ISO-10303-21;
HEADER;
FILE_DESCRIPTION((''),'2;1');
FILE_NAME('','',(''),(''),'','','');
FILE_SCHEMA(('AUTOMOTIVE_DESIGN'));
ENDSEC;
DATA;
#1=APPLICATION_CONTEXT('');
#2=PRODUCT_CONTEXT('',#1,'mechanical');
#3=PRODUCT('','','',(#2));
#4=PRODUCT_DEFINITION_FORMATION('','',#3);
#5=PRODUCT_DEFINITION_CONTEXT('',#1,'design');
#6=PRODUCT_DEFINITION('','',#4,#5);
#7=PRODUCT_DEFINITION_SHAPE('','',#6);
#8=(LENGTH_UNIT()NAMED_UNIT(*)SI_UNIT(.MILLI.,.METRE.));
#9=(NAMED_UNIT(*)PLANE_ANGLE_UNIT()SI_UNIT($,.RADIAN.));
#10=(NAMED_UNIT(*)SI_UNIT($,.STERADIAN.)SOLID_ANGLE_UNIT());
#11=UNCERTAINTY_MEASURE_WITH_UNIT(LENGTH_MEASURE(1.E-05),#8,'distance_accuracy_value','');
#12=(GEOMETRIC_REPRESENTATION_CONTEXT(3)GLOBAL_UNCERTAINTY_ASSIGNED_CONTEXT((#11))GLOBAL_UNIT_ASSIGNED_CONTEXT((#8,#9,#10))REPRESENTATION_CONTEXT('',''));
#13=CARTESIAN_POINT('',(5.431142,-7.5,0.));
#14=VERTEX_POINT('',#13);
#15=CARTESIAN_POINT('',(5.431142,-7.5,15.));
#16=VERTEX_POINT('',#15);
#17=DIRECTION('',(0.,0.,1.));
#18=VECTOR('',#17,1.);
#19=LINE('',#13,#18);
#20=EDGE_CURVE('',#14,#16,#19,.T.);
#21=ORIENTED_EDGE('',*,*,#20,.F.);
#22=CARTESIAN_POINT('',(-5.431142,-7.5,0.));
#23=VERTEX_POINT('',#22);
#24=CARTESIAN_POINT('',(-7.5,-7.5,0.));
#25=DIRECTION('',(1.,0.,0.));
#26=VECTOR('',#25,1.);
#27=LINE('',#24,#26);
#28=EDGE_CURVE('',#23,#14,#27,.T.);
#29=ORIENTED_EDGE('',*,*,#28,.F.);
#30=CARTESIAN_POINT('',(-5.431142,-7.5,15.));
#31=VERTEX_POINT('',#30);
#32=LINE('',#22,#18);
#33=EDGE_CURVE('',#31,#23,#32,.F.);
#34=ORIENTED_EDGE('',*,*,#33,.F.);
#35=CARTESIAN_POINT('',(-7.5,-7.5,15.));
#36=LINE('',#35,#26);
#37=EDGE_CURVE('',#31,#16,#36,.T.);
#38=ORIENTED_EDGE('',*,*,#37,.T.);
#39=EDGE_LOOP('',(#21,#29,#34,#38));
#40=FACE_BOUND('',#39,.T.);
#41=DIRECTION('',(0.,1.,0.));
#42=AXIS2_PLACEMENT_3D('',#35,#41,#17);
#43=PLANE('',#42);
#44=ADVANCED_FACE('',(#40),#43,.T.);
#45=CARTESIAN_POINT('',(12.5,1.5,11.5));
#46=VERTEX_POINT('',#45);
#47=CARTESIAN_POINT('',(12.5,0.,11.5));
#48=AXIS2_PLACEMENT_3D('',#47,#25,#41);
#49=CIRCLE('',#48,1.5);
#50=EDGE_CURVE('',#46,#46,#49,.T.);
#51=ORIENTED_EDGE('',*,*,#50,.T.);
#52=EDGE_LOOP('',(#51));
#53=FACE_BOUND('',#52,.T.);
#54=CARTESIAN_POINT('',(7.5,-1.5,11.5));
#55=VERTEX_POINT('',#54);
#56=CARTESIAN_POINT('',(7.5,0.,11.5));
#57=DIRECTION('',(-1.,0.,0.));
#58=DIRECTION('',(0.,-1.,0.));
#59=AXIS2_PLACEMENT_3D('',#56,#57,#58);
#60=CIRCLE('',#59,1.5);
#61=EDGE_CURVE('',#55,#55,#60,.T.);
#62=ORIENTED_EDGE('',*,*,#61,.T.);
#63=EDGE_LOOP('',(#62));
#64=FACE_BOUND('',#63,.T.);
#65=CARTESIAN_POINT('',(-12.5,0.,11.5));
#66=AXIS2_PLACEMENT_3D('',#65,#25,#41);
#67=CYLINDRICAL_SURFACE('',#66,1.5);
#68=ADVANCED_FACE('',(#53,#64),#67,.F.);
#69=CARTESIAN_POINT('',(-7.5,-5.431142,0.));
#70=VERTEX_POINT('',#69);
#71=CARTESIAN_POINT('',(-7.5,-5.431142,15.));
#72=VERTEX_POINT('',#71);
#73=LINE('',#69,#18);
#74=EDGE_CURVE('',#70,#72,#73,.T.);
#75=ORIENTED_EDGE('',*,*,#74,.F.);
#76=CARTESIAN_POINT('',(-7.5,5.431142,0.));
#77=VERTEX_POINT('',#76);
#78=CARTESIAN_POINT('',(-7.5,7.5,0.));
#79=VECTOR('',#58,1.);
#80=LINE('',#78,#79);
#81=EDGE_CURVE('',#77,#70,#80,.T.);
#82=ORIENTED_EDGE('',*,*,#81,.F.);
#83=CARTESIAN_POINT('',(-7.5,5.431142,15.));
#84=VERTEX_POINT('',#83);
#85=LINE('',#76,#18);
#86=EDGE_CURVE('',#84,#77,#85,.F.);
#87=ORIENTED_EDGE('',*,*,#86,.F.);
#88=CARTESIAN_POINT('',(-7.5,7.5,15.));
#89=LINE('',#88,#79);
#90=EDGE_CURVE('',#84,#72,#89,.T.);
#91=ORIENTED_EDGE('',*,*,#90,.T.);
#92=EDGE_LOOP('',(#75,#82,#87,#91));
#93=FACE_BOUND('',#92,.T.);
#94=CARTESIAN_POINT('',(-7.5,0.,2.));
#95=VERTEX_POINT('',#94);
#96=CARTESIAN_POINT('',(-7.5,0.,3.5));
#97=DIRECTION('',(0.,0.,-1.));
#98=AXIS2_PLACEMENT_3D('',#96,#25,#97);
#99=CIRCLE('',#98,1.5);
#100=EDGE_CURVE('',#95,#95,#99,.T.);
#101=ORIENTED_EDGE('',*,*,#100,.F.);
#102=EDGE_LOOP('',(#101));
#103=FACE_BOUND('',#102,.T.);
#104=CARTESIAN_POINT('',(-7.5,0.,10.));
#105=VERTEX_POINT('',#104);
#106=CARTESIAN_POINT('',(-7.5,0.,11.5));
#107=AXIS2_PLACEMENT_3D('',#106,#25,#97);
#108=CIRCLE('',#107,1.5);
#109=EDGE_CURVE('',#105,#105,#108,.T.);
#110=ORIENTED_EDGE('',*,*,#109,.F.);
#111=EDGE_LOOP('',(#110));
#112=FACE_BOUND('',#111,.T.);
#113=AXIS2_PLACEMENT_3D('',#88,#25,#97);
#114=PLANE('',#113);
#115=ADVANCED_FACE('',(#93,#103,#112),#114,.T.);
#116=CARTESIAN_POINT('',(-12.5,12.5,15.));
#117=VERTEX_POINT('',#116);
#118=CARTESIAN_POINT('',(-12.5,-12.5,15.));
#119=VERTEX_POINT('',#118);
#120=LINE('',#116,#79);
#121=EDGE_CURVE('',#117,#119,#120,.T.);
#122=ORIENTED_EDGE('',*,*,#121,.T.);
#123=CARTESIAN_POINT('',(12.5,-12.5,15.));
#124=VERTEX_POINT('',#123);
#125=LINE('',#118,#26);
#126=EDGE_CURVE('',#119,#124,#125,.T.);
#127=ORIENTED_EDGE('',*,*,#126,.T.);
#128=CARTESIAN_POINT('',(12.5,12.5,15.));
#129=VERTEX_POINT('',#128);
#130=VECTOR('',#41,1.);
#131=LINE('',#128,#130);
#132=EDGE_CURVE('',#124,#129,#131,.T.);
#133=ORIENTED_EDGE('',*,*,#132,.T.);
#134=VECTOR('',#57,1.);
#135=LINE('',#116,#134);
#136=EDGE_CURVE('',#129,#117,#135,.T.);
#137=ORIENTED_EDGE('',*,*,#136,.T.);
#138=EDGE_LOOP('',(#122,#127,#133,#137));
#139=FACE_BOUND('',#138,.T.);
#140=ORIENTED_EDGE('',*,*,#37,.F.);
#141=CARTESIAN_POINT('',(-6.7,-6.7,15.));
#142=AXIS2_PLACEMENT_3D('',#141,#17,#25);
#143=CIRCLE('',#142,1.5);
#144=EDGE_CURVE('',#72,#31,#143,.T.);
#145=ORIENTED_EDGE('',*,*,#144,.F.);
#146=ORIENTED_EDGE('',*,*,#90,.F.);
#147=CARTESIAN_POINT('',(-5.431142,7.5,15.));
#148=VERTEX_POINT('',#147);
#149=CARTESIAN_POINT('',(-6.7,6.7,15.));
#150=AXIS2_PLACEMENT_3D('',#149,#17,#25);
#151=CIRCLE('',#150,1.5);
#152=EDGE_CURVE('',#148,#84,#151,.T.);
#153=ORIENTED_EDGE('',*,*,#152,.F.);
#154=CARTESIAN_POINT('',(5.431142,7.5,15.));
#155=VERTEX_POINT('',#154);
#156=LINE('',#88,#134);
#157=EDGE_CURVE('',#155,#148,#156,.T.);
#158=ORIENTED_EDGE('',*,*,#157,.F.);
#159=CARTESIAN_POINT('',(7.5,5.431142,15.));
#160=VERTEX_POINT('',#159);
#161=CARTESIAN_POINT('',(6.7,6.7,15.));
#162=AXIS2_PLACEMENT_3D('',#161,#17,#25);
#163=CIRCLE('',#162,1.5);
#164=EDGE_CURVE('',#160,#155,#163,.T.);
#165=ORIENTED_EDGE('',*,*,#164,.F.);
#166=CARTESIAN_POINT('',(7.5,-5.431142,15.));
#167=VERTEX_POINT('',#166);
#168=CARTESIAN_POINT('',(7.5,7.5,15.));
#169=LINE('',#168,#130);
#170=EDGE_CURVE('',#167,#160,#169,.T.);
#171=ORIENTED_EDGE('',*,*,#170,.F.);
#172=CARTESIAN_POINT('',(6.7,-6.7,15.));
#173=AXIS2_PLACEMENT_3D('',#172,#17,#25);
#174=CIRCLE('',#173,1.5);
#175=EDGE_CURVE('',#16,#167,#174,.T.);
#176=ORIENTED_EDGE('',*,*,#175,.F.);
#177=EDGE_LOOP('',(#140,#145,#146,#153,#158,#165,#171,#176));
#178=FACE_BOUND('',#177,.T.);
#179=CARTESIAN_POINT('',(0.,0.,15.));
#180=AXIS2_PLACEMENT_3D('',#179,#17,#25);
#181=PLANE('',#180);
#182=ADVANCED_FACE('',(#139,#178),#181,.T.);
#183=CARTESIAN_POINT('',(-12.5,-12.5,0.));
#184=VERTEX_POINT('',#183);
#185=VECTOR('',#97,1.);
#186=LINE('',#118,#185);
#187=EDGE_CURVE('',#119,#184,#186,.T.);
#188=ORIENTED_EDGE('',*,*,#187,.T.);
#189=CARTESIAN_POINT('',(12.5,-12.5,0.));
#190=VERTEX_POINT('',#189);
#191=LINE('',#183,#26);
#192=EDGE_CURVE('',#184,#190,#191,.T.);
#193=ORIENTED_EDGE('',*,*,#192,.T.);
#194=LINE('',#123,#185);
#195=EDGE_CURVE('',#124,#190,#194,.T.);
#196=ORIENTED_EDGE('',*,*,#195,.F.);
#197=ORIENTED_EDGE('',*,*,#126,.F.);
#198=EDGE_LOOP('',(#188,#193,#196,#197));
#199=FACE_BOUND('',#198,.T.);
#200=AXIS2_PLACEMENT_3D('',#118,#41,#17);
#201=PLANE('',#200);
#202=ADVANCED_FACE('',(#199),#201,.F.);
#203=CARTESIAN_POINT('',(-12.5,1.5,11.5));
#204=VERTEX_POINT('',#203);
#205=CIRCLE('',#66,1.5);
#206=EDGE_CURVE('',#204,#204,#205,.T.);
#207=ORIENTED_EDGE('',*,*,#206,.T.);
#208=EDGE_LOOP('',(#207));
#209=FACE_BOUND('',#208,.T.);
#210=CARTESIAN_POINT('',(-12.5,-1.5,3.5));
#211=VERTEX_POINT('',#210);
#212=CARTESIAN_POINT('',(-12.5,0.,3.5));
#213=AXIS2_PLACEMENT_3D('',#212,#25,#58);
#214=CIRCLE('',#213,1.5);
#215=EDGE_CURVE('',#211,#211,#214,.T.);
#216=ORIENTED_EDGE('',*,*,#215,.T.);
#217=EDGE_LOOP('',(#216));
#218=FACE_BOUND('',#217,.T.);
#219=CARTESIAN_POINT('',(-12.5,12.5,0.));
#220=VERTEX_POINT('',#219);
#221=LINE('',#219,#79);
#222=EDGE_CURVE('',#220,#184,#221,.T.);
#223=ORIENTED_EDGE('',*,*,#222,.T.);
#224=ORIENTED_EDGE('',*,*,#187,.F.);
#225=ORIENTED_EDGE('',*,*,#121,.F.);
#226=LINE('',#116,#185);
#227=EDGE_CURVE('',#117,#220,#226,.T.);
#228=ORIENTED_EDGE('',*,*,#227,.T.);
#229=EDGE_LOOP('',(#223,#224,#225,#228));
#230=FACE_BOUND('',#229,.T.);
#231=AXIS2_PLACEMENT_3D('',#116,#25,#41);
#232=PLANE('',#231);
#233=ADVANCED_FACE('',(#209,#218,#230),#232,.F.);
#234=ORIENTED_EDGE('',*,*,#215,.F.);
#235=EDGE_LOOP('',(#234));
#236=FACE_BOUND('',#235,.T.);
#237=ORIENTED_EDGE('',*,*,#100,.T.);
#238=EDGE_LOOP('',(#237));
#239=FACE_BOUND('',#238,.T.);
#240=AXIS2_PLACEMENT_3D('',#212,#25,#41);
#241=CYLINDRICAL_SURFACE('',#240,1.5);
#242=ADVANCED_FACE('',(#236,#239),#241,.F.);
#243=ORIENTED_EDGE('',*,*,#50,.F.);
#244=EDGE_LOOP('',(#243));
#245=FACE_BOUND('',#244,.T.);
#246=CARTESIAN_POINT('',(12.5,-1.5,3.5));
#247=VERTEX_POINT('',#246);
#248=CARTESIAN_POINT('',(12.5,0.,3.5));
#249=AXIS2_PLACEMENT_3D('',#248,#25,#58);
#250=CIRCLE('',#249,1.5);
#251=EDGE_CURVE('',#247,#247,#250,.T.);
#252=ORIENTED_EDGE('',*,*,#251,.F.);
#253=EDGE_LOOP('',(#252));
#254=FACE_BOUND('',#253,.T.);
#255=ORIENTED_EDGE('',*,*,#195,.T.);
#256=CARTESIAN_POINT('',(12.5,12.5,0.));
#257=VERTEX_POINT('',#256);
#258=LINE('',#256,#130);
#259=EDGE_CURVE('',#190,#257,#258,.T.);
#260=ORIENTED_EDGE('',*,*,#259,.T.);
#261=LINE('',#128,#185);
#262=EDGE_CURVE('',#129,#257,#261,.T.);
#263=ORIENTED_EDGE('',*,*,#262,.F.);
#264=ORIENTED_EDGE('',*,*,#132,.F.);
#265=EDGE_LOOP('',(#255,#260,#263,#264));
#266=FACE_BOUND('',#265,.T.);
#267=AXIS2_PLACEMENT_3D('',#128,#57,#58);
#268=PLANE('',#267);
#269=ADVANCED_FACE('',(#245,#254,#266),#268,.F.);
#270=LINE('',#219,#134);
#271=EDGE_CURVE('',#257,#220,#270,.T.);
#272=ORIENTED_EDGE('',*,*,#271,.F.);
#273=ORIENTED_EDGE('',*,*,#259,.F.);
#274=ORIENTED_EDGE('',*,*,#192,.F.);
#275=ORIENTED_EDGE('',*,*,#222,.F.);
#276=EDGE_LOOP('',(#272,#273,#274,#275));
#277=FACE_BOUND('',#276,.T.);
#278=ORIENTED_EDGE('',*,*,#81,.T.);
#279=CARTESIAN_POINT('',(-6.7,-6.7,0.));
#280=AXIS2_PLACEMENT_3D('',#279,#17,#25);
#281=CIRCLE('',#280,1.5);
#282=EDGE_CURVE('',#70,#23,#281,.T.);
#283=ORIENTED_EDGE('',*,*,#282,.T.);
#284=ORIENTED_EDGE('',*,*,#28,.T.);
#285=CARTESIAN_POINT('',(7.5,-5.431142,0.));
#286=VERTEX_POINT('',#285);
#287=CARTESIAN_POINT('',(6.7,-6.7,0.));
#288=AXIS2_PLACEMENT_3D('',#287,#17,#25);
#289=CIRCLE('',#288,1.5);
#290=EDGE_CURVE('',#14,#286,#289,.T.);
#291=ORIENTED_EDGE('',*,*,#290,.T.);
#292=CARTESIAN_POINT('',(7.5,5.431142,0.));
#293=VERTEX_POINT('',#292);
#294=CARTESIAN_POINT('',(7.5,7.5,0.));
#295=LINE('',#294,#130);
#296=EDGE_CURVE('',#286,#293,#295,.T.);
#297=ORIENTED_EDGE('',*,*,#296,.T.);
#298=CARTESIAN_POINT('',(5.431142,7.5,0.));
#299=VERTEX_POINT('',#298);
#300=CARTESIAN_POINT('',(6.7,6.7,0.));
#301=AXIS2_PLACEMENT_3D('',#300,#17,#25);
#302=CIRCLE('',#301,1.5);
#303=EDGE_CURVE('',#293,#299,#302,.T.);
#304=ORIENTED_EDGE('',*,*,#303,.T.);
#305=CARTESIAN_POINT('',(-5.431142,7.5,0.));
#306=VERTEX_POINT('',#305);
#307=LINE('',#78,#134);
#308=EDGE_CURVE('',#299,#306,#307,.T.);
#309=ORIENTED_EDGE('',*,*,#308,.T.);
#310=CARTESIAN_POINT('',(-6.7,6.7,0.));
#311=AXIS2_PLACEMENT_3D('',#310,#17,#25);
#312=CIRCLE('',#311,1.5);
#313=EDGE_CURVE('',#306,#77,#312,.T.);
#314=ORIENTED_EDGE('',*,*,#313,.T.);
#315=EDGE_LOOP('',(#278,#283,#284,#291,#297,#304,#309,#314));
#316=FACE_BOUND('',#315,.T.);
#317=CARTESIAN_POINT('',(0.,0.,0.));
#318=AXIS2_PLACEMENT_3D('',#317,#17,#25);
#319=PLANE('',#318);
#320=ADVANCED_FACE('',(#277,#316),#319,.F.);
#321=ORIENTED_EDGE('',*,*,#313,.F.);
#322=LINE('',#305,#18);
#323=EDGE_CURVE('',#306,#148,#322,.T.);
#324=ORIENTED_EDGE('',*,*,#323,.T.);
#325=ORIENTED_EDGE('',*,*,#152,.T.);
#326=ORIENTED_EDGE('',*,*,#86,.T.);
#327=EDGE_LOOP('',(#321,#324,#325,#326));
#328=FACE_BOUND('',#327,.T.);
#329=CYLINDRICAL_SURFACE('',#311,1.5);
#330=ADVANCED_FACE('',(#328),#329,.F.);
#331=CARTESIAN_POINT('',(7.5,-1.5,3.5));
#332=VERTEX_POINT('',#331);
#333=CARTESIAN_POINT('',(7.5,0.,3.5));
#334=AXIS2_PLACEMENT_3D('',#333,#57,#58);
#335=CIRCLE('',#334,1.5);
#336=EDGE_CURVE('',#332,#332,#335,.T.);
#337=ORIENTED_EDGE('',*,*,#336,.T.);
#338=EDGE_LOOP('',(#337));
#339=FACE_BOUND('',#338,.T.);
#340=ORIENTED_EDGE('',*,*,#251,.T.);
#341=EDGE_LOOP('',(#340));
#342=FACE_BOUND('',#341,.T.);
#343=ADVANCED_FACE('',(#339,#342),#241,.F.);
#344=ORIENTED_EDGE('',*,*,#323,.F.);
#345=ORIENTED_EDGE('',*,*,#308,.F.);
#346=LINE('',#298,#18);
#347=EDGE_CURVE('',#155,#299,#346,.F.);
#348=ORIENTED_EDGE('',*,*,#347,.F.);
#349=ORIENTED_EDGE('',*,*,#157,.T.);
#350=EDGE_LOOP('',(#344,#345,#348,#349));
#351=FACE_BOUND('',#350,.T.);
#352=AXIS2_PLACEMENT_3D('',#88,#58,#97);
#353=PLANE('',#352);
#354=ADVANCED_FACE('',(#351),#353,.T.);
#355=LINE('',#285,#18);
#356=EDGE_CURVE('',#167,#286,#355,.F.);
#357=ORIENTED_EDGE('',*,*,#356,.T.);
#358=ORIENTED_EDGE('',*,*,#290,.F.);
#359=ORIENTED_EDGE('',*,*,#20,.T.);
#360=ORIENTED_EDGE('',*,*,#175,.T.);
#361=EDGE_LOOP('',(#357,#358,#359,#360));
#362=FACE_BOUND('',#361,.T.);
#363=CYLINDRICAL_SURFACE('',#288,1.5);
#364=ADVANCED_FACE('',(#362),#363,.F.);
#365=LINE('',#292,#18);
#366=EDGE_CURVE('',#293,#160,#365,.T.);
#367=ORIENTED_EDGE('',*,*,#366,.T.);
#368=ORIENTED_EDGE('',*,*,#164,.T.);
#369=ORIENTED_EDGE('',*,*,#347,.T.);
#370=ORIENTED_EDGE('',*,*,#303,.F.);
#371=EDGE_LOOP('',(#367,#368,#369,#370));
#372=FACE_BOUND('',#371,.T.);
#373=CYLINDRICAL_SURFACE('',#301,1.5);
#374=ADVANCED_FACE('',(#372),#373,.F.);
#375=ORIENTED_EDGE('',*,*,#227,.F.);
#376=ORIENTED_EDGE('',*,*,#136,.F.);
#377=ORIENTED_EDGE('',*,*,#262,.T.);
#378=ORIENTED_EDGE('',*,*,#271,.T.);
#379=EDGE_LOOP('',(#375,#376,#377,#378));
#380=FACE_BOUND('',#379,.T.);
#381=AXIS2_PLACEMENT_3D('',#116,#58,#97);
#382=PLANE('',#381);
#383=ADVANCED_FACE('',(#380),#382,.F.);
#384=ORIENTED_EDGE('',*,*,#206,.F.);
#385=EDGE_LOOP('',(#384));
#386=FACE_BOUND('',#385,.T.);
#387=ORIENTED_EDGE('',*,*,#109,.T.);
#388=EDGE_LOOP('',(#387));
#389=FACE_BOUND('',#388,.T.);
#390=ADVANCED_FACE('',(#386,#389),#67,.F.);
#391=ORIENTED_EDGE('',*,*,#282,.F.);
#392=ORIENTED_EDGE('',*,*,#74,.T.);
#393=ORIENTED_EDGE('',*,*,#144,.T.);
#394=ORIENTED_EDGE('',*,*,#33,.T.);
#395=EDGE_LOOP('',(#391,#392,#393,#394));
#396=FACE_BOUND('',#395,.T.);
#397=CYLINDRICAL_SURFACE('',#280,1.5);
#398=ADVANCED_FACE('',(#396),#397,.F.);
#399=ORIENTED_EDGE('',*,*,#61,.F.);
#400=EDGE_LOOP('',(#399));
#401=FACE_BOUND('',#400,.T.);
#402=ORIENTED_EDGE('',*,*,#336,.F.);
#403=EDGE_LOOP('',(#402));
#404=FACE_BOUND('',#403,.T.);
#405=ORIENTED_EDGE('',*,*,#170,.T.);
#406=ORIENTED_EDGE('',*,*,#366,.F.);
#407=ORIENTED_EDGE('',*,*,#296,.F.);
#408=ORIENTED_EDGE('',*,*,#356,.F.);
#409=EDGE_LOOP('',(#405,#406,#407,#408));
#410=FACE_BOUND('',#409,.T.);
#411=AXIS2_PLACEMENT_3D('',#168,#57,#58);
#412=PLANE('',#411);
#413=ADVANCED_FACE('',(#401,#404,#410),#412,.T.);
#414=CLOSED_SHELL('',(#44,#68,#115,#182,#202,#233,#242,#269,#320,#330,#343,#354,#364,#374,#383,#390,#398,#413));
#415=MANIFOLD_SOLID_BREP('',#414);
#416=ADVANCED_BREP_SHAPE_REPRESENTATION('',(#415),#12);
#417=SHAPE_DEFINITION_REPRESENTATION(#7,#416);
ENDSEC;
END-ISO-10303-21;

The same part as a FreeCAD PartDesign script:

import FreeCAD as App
import Part
import Sketcher
from FreeCAD import Vector


def add_polygon(sketch, points):
    """Adds a closed chain of lines whose ends are joined by coincident constraints."""
    first, n = sketch.GeometryCount, len(points)
    for a, b in zip(points, points[1:] + points[:1]):
        sketch.addGeometry(Part.LineSegment(App.Vector(*a, 0), App.Vector(*b, 0)), False)
    for i in range(n):
        sketch.addConstraint(Sketcher.Constraint("Coincident", first + i, 2, first + (i + 1) % n, 1))

doc = App.newDocument("Part")
params = doc.addObject("Spreadsheet::Sheet", "Params")
for row, (alias, value) in enumerate([
    ("sketch1_width", "25 mm"),
    ("sketch1_width2", "15 mm"),
    ("pad1_length", "15 mm"),
    ("sketch2_diameter", "3 mm"),
    ("sketch3_diameter", "3 mm"),
], start=1):
    params.set(f"A{row}", alias)
    params.set(f"B{row}", "=" + value)
    params.setAlias(f"B{row}", alias)

body = doc.addObject("PartDesign::Body", "Body")

# Sketch on XY plane
sketch1 = doc.addObject("Sketcher::SketchObject", "Sketch")
body.addObject(sketch1)
sketch1.AttachmentSupport = (doc.XY_Plane, [""])
sketch1.MapMode = "FlatFace"
add_polygon(sketch1, [(-12.5, 12.5), (-12.5, -12.5), (12.5, -12.5), (12.5, 12.5)])  # lines 0-3
add_polygon(sketch1, [(7.5, -7.5), (-7.5, -7.5), (-7.5, 7.5), (7.5, 7.5)])  # lines 4-7
sketch1.addConstraint([
    Sketcher.Constraint("Vertical", 0),
    Sketcher.Constraint("Horizontal", 1),
    Sketcher.Constraint("Vertical", 2),
    Sketcher.Constraint("Horizontal", 3),
    Sketcher.Constraint("Horizontal", 4),
    Sketcher.Constraint("Vertical", 5),
    Sketcher.Constraint("Horizontal", 6),
    Sketcher.Constraint("Vertical", 7),
    Sketcher.Constraint("Symmetric", 0, 2, 2, 2, -1, 1),
    Sketcher.Constraint("Symmetric", 4, 2, 6, 2, -1, 1),
    Sketcher.Constraint("Equal", 3, 0),
    Sketcher.Constraint("Equal", 6, 5),
    Sketcher.Constraint("DistanceX", 1, 1, 1, 2, 25.0),
    Sketcher.Constraint("DistanceX", 4, 2, 4, 1, 15.0),
])
sketch1.setExpression("Constraints[20]", "Params.sketch1_width")
sketch1.setExpression("Constraints[21]", "Params.sketch1_width2")
pad1 = doc.addObject("PartDesign::Pad", "Pad")
body.addObject(pad1)
pad1.Profile = sketch1
pad1.setExpression("Length", "Params.pad1_length")

# Sketch on XY plane
sketch2 = doc.addObject("Sketcher::SketchObject", "Sketch001")
body.addObject(sketch2)
sketch2.AttachmentSupport = (doc.XY_Plane, [""])
sketch2.MapMode = "FlatFace"
sketch2.AttachmentOffset = App.Placement(Vector(0, 0, 15), App.Rotation())
sketch2.addGeometry([
    Part.Circle(Vector(6.7, 6.7, 0), Vector(0, 0, 1), 1.5),
    Part.Circle(Vector(6.7, -6.7, 0), Vector(0, 0, 1), 1.5),
    Part.Circle(Vector(-6.7, -6.7, 0), Vector(0, 0, 1), 1.5),
    Part.Circle(Vector(-6.7, 6.7, 0), Vector(0, 0, 1), 1.5),
], False)
sketch2.addConstraint([
    Sketcher.Constraint("Equal", 0, 1),
    Sketcher.Constraint("Equal", 1, 2),
    Sketcher.Constraint("Equal", 2, 3),
    Sketcher.Constraint("Symmetric", 0, 3, 2, 3, -1, 1),
    Sketcher.Constraint("Symmetric", 1, 3, 3, 3, -1, 1),
    Sketcher.Constraint("Symmetric", 1, 3, 2, 3, -2),
    Sketcher.Constraint("Diameter", 0, 3.0),
    Sketcher.Constraint("DistanceX", -1, 1, 0, 3, 6.7),
    Sketcher.Constraint("DistanceY", -1, 1, 0, 3, 6.7),
])
sketch2.setExpression("Constraints[6]", "Params.sketch2_diameter")
pocket1 = doc.addObject("PartDesign::Pocket", "Pocket")
body.addObject(pocket1)
pocket1.Profile = sketch2
pocket1.Type = "ThroughAll"

# Sketch on YZ plane
sketch3 = doc.addObject("Sketcher::SketchObject", "Sketch002")
body.addObject(sketch3)
sketch3.AttachmentSupport = (doc.YZ_Plane, [""])
sketch3.MapMode = "FlatFace"
sketch3.AttachmentOffset = App.Placement(Vector(0, 0, 12.5), App.Rotation())
sketch3.addGeometry([
    Part.Circle(Vector(0, 11.5, 0), Vector(0, 0, 1), 1.5),
    Part.Circle(Vector(0, 3.5, 0), Vector(0, 0, 1), 1.5),
], False)
sketch3.addConstraint([
    Sketcher.Constraint("Equal", 0, 1),
    Sketcher.Constraint("PointOnObject", 0, 3, -2),
    Sketcher.Constraint("PointOnObject", 1, 3, -2),
    Sketcher.Constraint("Diameter", 0, 3.0),
    Sketcher.Constraint("DistanceY", 1, 3, 0, 3, 8.0),
    Sketcher.Constraint("DistanceY", -1, 1, 0, 3, 11.5),
])
sketch3.setExpression("Constraints[3]", "Params.sketch3_diameter")
pocket2 = doc.addObject("PartDesign::Pocket", "Pocket001")
body.addObject(pocket2)
pocket2.Profile = sketch3
pocket2.Type = "ThroughAll"

doc.recompute()
